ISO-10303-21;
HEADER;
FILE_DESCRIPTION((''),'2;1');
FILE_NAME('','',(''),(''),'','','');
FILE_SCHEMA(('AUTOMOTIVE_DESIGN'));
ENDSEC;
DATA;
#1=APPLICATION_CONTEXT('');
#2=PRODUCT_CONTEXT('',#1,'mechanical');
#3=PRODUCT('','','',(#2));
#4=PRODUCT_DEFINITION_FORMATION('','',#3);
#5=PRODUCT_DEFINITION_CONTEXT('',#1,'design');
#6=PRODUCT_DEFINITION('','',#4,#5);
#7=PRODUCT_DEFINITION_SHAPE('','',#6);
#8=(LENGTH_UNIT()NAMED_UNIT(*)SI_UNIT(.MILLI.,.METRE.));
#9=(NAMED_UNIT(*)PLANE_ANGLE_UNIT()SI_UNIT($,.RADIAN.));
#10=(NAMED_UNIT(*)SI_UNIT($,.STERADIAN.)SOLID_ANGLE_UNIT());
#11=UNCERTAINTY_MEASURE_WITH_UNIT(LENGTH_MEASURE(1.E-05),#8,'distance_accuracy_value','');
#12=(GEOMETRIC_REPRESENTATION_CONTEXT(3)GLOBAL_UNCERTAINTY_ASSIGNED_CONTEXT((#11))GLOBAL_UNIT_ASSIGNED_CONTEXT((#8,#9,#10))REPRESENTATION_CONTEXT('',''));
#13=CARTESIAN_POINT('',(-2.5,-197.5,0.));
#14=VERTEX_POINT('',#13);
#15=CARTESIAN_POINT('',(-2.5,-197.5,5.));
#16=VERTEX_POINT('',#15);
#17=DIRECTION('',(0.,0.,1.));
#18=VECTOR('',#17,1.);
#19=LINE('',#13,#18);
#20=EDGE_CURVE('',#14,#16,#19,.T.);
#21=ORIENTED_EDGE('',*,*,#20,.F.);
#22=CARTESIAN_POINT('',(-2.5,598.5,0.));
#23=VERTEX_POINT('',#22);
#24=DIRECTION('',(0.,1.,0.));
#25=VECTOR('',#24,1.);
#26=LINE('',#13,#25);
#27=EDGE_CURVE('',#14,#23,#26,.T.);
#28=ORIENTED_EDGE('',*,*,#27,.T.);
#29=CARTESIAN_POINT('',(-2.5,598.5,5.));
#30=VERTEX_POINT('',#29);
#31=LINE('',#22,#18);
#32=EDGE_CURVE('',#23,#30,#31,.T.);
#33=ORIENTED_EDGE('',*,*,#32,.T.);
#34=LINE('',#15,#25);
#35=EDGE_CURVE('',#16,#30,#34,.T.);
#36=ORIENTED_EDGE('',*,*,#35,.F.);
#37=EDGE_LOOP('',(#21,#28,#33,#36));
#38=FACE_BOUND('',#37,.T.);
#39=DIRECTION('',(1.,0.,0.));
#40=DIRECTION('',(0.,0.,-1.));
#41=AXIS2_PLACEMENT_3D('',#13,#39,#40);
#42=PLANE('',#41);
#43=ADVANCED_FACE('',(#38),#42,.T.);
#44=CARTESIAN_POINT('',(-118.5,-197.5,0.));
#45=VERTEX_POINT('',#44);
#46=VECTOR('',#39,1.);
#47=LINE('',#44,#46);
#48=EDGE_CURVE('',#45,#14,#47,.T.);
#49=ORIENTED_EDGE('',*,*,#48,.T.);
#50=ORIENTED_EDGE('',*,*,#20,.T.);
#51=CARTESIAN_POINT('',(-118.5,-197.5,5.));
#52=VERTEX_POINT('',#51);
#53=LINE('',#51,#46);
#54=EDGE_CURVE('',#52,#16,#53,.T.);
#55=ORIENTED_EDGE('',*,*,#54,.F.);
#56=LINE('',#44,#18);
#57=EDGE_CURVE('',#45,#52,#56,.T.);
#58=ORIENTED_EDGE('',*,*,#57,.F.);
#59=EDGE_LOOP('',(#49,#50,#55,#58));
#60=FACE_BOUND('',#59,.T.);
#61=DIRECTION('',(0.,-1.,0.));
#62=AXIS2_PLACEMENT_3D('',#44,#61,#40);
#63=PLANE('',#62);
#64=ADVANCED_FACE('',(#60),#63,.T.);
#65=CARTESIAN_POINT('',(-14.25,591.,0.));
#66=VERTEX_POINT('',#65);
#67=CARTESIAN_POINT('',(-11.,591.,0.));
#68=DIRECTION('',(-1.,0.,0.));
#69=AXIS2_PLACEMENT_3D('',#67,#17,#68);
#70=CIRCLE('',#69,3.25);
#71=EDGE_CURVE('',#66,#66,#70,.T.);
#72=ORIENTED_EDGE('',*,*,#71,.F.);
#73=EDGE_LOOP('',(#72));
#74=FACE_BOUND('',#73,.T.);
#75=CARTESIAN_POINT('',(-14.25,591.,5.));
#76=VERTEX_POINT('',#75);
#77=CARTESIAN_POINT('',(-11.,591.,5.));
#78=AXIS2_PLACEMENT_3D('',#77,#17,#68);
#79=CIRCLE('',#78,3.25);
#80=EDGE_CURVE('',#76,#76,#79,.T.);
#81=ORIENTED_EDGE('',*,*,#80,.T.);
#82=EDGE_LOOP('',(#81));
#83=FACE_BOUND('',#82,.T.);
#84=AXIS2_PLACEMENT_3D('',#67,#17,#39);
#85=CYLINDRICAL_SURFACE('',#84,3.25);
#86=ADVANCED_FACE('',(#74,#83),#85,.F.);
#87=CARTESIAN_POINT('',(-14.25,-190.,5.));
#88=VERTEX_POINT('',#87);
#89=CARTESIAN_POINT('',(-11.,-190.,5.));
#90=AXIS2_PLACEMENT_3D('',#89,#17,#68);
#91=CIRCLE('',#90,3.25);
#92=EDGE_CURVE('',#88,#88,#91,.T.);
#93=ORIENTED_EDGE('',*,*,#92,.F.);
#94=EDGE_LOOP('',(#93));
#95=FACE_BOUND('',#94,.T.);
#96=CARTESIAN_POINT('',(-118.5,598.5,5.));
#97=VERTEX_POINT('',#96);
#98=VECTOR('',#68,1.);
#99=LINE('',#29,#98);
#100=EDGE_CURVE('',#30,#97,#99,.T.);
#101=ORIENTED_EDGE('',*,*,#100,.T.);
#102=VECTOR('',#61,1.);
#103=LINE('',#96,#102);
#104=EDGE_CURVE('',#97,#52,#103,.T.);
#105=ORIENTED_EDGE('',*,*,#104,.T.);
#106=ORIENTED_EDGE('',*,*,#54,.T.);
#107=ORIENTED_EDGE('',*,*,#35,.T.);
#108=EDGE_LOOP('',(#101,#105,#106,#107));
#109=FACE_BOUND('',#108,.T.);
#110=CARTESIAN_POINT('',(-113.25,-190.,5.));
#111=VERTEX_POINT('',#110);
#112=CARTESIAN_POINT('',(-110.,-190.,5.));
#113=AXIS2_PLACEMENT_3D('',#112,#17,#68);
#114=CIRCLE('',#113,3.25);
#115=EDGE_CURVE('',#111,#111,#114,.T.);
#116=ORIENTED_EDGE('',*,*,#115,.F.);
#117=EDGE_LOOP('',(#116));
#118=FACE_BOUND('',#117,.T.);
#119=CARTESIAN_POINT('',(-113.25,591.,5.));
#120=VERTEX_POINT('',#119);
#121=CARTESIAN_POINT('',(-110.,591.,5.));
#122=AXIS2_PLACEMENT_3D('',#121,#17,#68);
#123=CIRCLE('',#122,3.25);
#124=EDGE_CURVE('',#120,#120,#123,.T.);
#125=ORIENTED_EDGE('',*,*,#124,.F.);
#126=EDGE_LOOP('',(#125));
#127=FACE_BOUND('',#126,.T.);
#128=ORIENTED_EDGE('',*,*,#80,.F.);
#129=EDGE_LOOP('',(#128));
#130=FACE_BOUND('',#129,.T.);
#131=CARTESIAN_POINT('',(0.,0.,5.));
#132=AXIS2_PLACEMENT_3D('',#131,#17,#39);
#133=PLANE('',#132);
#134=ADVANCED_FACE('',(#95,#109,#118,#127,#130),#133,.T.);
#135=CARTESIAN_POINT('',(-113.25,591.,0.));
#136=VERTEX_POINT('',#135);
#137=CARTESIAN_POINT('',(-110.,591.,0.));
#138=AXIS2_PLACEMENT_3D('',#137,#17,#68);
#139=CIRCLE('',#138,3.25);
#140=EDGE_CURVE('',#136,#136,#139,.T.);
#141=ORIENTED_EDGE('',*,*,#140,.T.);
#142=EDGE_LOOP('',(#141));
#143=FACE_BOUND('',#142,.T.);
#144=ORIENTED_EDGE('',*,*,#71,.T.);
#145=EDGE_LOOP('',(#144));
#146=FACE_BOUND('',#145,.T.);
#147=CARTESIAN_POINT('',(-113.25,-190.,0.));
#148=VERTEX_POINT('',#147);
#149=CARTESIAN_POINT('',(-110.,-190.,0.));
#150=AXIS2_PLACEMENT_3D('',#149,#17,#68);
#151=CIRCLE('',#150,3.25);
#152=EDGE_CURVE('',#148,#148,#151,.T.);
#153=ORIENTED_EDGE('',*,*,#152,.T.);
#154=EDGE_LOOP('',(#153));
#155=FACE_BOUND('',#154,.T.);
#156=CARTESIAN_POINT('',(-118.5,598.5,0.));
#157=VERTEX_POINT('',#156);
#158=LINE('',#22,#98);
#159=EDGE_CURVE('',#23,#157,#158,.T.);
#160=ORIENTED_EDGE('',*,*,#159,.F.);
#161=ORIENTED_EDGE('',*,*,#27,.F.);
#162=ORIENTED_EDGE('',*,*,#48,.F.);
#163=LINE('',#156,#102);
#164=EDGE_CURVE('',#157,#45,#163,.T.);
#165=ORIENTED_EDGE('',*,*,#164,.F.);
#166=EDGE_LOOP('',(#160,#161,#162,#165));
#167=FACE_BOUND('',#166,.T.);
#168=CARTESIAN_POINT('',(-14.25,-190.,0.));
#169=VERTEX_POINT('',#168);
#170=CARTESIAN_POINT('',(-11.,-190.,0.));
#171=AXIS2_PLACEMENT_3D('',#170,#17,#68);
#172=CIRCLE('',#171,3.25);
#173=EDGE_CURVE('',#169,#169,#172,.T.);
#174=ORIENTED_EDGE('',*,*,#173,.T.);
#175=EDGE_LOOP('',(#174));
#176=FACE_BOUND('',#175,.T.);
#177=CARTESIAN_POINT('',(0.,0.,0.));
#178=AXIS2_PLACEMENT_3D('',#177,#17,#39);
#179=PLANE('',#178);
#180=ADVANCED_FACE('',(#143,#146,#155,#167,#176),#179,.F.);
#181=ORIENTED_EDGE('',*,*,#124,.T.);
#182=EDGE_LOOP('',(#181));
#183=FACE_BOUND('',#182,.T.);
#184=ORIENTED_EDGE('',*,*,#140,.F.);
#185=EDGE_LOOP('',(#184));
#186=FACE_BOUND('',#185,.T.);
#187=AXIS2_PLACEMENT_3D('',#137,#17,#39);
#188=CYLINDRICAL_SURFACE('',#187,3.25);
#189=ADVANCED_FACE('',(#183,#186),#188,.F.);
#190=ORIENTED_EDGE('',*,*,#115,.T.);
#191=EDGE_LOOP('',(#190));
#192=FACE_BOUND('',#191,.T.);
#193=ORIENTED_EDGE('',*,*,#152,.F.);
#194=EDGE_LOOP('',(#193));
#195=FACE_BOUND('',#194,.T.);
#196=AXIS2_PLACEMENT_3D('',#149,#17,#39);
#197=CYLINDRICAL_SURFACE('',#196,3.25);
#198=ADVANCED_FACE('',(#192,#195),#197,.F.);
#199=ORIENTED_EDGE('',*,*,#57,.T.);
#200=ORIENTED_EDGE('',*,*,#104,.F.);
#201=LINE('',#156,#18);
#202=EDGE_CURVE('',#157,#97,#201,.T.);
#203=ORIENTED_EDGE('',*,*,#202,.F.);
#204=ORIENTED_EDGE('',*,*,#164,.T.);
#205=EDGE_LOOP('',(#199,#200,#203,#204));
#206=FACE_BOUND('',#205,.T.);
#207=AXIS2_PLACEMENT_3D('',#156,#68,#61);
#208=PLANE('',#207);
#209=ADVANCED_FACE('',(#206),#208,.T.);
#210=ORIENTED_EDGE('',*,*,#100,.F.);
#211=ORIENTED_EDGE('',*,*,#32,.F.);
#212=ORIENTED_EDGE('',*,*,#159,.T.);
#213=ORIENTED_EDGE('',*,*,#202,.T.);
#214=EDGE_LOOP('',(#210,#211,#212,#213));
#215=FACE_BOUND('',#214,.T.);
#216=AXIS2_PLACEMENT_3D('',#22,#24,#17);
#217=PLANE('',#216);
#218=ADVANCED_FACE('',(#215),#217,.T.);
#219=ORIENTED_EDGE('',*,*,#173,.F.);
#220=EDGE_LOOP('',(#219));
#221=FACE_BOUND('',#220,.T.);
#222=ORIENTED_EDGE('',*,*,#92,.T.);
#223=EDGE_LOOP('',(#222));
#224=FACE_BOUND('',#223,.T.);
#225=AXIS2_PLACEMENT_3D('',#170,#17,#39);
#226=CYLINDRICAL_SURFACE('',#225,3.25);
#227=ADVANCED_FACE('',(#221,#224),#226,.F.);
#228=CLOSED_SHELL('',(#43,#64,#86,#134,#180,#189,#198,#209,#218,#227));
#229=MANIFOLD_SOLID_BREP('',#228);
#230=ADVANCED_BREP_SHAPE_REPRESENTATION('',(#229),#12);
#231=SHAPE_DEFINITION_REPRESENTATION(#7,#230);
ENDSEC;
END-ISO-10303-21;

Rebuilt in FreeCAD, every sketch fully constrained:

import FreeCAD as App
import Part
import Sketcher


def add_polygon(sketch, points):
    """Adds a closed chain of lines whose ends are joined by coincident constraints."""
    first, n = sketch.GeometryCount, len(points)
    for a, b in zip(points, points[1:] + points[:1]):
        sketch.addGeometry(Part.LineSegment(App.Vector(*a, 0), App.Vector(*b, 0)), False)
    for i in range(n):
        sketch.addConstraint(Sketcher.Constraint("Coincident", first + i, 2, first + (i + 1) % n, 1))

doc = App.newDocument("Part")
body = doc.addObject("PartDesign::Body", "Body")

sketch1 = body.newObject("Sketcher::SketchObject", "Sketch")
sketch1.AttachmentSupport = (doc.getObject("XY_Plane"), [""])
sketch1.MapMode = "FlatFace"
sketch1.AttachmentOffset = App.Placement(App.Vector(0, 0, 5), App.Rotation())
add_polygon(sketch1, [(-118.5, 598.5), (-118.5, -197.5), (-2.5, -197.5), (-2.5, 598.5)])
sketch1.addGeometry(Part.Circle(App.Vector(-110, -190, 0), App.Vector(0, 0, 1), 3.2), False)
sketch1.addGeometry(Part.Circle(App.Vector(-11, -190, 0), App.Vector(0, 0, 1), 3.2), False)
sketch1.addGeometry(Part.Circle(App.Vector(-110, 591, 0), App.Vector(0, 0, 1), 3.2), False)
sketch1.addGeometry(Part.Circle(App.Vector(-11, 591, 0), App.Vector(0, 0, 1), 3.2), False)
sketch1.addConstraint(Sketcher.Constraint("Vertical", 0))
sketch1.addConstraint(Sketcher.Constraint("Horizontal", 1))
sketch1.addConstraint(Sketcher.Constraint("Vertical", 2))
sketch1.addConstraint(Sketcher.Constraint("Horizontal", 3))
sketch1.addConstraint(Sketcher.Constraint("Equal", 4, 5))
sketch1.addConstraint(Sketcher.Constraint("Equal", 5, 6))
sketch1.addConstraint(Sketcher.Constraint("Equal", 6, 7))
sketch1.addConstraint(Sketcher.Constraint("Horizontal", 4, 3, 5, 3))
sketch1.addConstraint(Sketcher.Constraint("Horizontal", 6, 3, 7, 3))
sketch1.addConstraint(Sketcher.Constraint("Vertical", 4, 3, 6, 3))
sketch1.addConstraint(Sketcher.Constraint("Vertical", 5, 3, 7, 3))
sketch1.addConstraint(Sketcher.Constraint("Diameter", 4, 6.5))
sketch1.addConstraint(Sketcher.Constraint("DistanceX", 1, 1, 1, 2, 116.0))
sketch1.addConstraint(Sketcher.Constraint("DistanceY", 0, 2, 0, 1, 796.0))
sketch1.addConstraint(Sketcher.Constraint("DistanceX", 4, 3, -1, 1, 110.0))
sketch1.addConstraint(Sketcher.Constraint("DistanceY", 4, 3, -1, 1, 190.0))
sketch1.addConstraint(Sketcher.Constraint("DistanceX", 5, 3, -1, 1, 11.0))
sketch1.addConstraint(Sketcher.Constraint("DistanceY", -1, 1, 6, 3, 591.0))
sketch1.addConstraint(Sketcher.Constraint("DistanceX", 0, 2, -1, 1, 118.5))
sketch1.addConstraint(Sketcher.Constraint("DistanceY", 0, 2, -1, 1, 197.5))
pad1 = body.newObject("PartDesign::Pad", "Pad")
pad1.Profile = sketch1
pad1.Length = 5
pad1.Reversed = True

doc.recompute()
